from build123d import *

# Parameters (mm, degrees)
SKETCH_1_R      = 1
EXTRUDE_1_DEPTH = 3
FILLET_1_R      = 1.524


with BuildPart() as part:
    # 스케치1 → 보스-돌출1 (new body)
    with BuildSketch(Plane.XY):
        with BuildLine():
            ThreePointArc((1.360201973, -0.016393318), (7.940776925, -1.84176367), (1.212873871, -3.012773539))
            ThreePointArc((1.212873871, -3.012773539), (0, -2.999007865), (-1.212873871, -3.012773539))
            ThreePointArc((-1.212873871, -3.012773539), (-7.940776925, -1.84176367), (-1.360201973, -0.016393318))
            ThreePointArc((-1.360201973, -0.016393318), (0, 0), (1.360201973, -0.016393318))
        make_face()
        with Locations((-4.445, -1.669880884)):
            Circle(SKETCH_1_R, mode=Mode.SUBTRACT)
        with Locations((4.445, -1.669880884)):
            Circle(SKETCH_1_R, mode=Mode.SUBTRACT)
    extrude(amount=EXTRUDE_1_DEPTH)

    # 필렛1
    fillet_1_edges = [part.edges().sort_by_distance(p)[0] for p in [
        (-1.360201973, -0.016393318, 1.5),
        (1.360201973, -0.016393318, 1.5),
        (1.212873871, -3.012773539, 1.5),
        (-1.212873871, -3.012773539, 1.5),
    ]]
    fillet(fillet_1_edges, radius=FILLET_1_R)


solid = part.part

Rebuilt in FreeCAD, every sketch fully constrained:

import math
import FreeCAD as App
import Part
import Sketcher

V = App.Vector


def edges_at(feature, points):
    """Names of the edges that pass closest to the given points."""
    edges = feature.Shape.Edges
    near = lambda p: min(range(len(edges)), key=lambda i: edges[i].distToShape(Part.Vertex(*p))[0])
    return sorted({f"Edge{near(p) + 1}" for p in points})

doc = App.newDocument("Part")
params = doc.addObject("Spreadsheet::Sheet", "Params")
for row, (alias, value) in enumerate([
    ("sketch1_diameter", "2 mm"),
    ("sketch1_radius", "3.5 mm"),
    ("pad1_length", "3 mm"),
    ("fillet_radius", "1.524 mm"),
], start=1):
    params.set(f"A{row}", alias)
    params.set(f"B{row}", "=" + value)
    params.setAlias(f"B{row}", alias)

body = doc.addObject("PartDesign::Body", "Body")

sketch1 = body.newObject("Sketcher::SketchObject", "Sketch")
sketch1.AttachmentSupport = (doc.getObject("XY_Plane"), [""])
sketch1.MapMode = "FlatFace"
sketch1.addGeometry(Part.ArcOfCircle(Part.Circle(V(4.445, -1.669881, 0), V(0, 0, 1), 3.5), math.radians(-157.437958), math.radians(151.808175)), False)
sketch1.addGeometry(Part.ArcOfCircle(Part.Circle(V(0, -56.438183, 0), V(0, 0, 1), 56.438183), math.radians(88.618996), math.radians(91.381004)), False)
sketch1.addGeometry(Part.ArcOfCircle(Part.Circle(V(-4.445, -1.669881, 0), V(0, 0, 1), 3.5), math.radians(28.191825), math.radians(337.437958)), False)
sketch1.addGeometry(Part.ArcOfCircle(Part.Circle(V(0, -56.438183, 0), V(0, 0, 1), 53.439175), math.radians(88.699484), math.radians(91.300516)), False)
sketch1.addGeometry(Part.Circle(V(4.445, -1.669881, 0), V(0, 0, 1), 1), False)
sketch1.addGeometry(Part.Circle(V(-4.445, -1.669881, 0), V(0, 0, 1), 1), False)
sketch1.addConstraint(Sketcher.Constraint("Coincident", 0, 2, 1, 1))
sketch1.addConstraint(Sketcher.Constraint("Coincident", 1, 2, 2, 1))
sketch1.addConstraint(Sketcher.Constraint("Coincident", 2, 2, 3, 2))
sketch1.addConstraint(Sketcher.Constraint("Coincident", 3, 1, 0, 1))
sketch1.addConstraint(Sketcher.Constraint("Coincident", 3, 3, 1, 3))
sketch1.addConstraint(Sketcher.Constraint("Coincident", 4, 3, 0, 3))
sketch1.addConstraint(Sketcher.Constraint("Coincident", 5, 3, 2, 3))
sketch1.addConstraint(Sketcher.Constraint("Equal", 0, 2))
sketch1.addConstraint(Sketcher.Constraint("Equal", 4, 5))
sketch1.addConstraint(Sketcher.Constraint("Symmetric", 0, 3, 2, 3, -2))
sketch1.addConstraint(Sketcher.Constraint("PointOnObject", 1, 3, -2))
sketch1.addConstraint(Sketcher.Constraint("Diameter", 4, 2.0))
sketch1.addConstraint(Sketcher.Constraint("Radius", 0, 3.5))
sketch1.addConstraint(Sketcher.Constraint("DistanceX", 2, 3, 0, 3, 8.89))
sketch1.addConstraint(Sketcher.Constraint("Radius", 1, 56.438183))
sketch1.addConstraint(Sketcher.Constraint("Radius", 3, 53.439175))
sketch1.addConstraint(Sketcher.Constraint("DistanceX", -1, 1, 0, 2, 1.360202))
sketch1.addConstraint(Sketcher.Constraint("DistanceY", 0, 3, -1, 1, 1.669881))
sketch1.setExpression("Constraints[11]", "Params.sketch1_diameter")
sketch1.setExpression("Constraints[12]", "Params.sketch1_radius")
pad1 = body.newObject("PartDesign::Pad", "Pad")
pad1.Profile = sketch1
pad1.setExpression("Length", "Params.pad1_length")
doc.recompute()

fillet = body.newObject("PartDesign::Fillet", "Fillet")
fillet.Base = (pad1, edges_at(pad1, [
    (-1.36, -0.016, 1.5),
    (1.36, -0.016, 1.5),
    (1.213, -3.013, 1.5),
    (-1.213, -3.013, 1.5),
]))
fillet.setExpression("Radius", "Params.fillet_radius")

doc.recompute()
